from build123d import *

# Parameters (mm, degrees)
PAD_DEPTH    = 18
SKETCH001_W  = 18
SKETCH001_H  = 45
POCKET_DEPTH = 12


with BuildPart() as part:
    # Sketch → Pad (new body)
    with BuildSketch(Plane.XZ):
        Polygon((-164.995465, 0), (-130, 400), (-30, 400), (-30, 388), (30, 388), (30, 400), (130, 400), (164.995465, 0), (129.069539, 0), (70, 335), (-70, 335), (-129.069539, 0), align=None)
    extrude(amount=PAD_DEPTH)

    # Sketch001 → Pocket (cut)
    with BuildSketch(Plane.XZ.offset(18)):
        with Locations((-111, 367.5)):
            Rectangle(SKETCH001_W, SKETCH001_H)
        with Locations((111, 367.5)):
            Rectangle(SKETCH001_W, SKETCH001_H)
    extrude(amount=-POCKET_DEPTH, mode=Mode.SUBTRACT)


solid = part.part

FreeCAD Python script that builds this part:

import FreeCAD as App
import Part
import Sketcher
Q = App.Units.Quantity

doc = App.newDocument("Part")
params = doc.addObject("Spreadsheet::Sheet", "Params")
for row, (alias, value) in enumerate([
    ("sketch1_width", "140 mm"),
    ("sketch1_width2", "100 mm"),
    ("sketch1_width3", "60 mm"),
    ("sketch1_height", "12 mm"),
    ("pad1_length", "18 mm"),
    ("sketch2_width", "18 mm"),
    ("sketch2_height", "45 mm"),
    ("pocket1_length", "12 mm"),
], start=1):
    params.set(f"A{row}", alias)
    params.set(f"B{row}", "=" + value)
    params.setAlias(f"B{row}", alias)

body = doc.addObject("PartDesign::Body", "Body")

# Sketch on XZ plane
sketch1 = doc.addObject("Sketcher::SketchObject", "Sketch")
body.addObject(sketch1)
sketch1.AttachmentSupport = (doc.XZ_Plane, [""])
sketch1.MapMode = "FlatFace"
sketch1.addGeometry([
    Part.LineSegment(App.Vector(-130, 400, 0), App.Vector(-165, 0, 0)),  # 0
    Part.LineSegment(App.Vector(-165, 0, 0), App.Vector(-129, 0, 0)),  # 1
    Part.LineSegment(App.Vector(-129, 0, 0), App.Vector(-70, 335, 0)),  # 2
    Part.LineSegment(App.Vector(-70, 335, 0), App.Vector(70, 335, 0)),  # 3
    Part.LineSegment(App.Vector(70, 335, 0), App.Vector(129, 0, 0)),  # 4
    Part.LineSegment(App.Vector(129, 0, 0), App.Vector(165, 0, 0)),  # 5
    Part.LineSegment(App.Vector(165, 0, 0), App.Vector(130, 400, 0)),  # 6
    Part.LineSegment(App.Vector(130, 400, 0), App.Vector(30, 400, 0)),  # 7
    Part.LineSegment(App.Vector(30, 400, 0), App.Vector(30, 388, 0)),  # 8
    Part.LineSegment(App.Vector(30, 388, 0), App.Vector(-30, 388, 0)),  # 9
    Part.LineSegment(App.Vector(-30, 388, 0), App.Vector(-30, 400, 0)),  # 10
    Part.LineSegment(App.Vector(-30, 400, 0), App.Vector(-130, 400, 0)),  # 11
], False)
sketch1.addConstraint([
    Sketcher.Constraint("Coincident", 0, 2, 1, 1),
    Sketcher.Constraint("Coincident", 1, 2, 2, 1),
    Sketcher.Constraint("Coincident", 2, 2, 3, 1),
    Sketcher.Constraint("Coincident", 3, 2, 4, 1),
    Sketcher.Constraint("Coincident", 4, 2, 5, 1),
    Sketcher.Constraint("Coincident", 5, 2, 6, 1),
    Sketcher.Constraint("Coincident", 6, 2, 7, 1),
    Sketcher.Constraint("Coincident", 7, 2, 8, 1),
    Sketcher.Constraint("Coincident", 8, 2, 9, 1),
    Sketcher.Constraint("Coincident", 9, 2, 10, 1),
    Sketcher.Constraint("Coincident", 10, 2, 11, 1),
    Sketcher.Constraint("Coincident", 11, 2, 0, 1),
    Sketcher.Constraint("Horizontal", 1),
    Sketcher.Constraint("Horizontal", 3),
    Sketcher.Constraint("Horizontal", 5),
    Sketcher.Constraint("Horizontal", 7),
    Sketcher.Constraint("Vertical", 8),
    Sketcher.Constraint("Horizontal", 9),
    Sketcher.Constraint("Vertical", 10),
    Sketcher.Constraint("Horizontal", 11),
    Sketcher.Constraint("Symmetric", 1, 2, 4, 2, -1, 1),
    Sketcher.Constraint("Symmetric", 0, 2, 5, 2, -2),
    Sketcher.Constraint("Symmetric", 7, 2, 10, 2, -2),
    Sketcher.Constraint("Equal", 7, 11),
    Sketcher.Constraint("Equal", 2, 4),
    Sketcher.Constraint("DistanceX", 3, 1, 3, 2, Q("140 mm")),
    Sketcher.Constraint("DistanceX", 7, 2, 7, 1, Q("100 mm")),
    Sketcher.Constraint("DistanceX", 9, 2, 9, 1, Q("60 mm")),
    Sketcher.Constraint("DistanceY", 8, 2, 8, 1, Q("12 mm")),
    Sketcher.Constraint("Angle", 0, Q("-95 deg")),
    Sketcher.Constraint("Angle", 2, Q("80 deg")),
    Sketcher.Constraint("DistanceY", -1, 1, 2, 2, Q("335 mm")),
    Sketcher.Constraint("DistanceY", -1, 1, 6, 2, Q("400 mm")),
])
sketch1.setExpression("Constraints[25]", "Params.sketch1_width")
sketch1.setExpression("Constraints[26]", "Params.sketch1_width2")
sketch1.setExpression("Constraints[27]", "Params.sketch1_width3")
sketch1.setExpression("Constraints[28]", "Params.sketch1_height")
pad1 = doc.addObject("PartDesign::Pad", "Pad")
body.addObject(pad1)
pad1.Profile = sketch1
pad1.setExpression("Length", "Params.pad1_length")

# Sketch on XZ plane
sketch2 = doc.addObject("Sketcher::SketchObject", "Sketch001")
body.addObject(sketch2)
sketch2.AttachmentSupport = (doc.XZ_Plane, [""])
sketch2.MapMode = "FlatFace"
sketch2.AttachmentOffset = App.Placement(App.Vector(0, 0, 18), App.Rotation())
sketch2.addGeometry([
    Part.LineSegment(App.Vector(-120, 390, 0), App.Vector(-120, 345, 0)),  # 0
    Part.LineSegment(App.Vector(-120, 345, 0), App.Vector(-102, 345, 0)),  # 1
    Part.LineSegment(App.Vector(-102, 345, 0), App.Vector(-102, 390, 0)),  # 2
    Part.LineSegment(App.Vector(-102, 390, 0), App.Vector(-120, 390, 0)),  # 3
    Part.LineSegment(App.Vector(102, 390, 0), App.Vector(102, 345, 0)),  # 4
    Part.LineSegment(App.Vector(102, 345, 0), App.Vector(120, 345, 0)),  # 5
    Part.LineSegment(App.Vector(120, 345, 0), App.Vector(120, 390, 0)),  # 6
    Part.LineSegment(App.Vector(120, 390, 0), App.Vector(102, 390, 0)),  # 7
], False)
sketch2.addConstraint([
    Sketcher.Constraint("Coincident", 0, 2, 1, 1),
    Sketcher.Constraint("Coincident", 1, 2, 2, 1),
    Sketcher.Constraint("Coincident", 2, 2, 3, 1),
    Sketcher.Constraint("Coincident", 3, 2, 0, 1),
    Sketcher.Constraint("Coincident", 4, 2, 5, 1),
    Sketcher.Constraint("Coincident", 5, 2, 6, 1),
    Sketcher.Constraint("Coincident", 6, 2, 7, 1),
    Sketcher.Constraint("Coincident", 7, 2, 4, 1),
    Sketcher.Constraint("Vertical", 0),
    Sketcher.Constraint("Horizontal", 1),
    Sketcher.Constraint("Vertical", 2),
    Sketcher.Constraint("Horizontal", 3),
    Sketcher.Constraint("Vertical", 4),
    Sketcher.Constraint("Horizontal", 5),
    Sketcher.Constraint("Vertical", 6),
    Sketcher.Constraint("Horizontal", 7),
    Sketcher.Constraint("Symmetric", 1, 2, 4, 2, -2),
    Sketcher.Constraint("Symmetric", 3, 2, 6, 2, -2),
    Sketcher.Constraint("DistanceX", 1, 1, 1, 2, Q("18 mm")),
    Sketcher.Constraint("DistanceY", 0, 2, 0, 1, Q("45 mm")),
    Sketcher.Constraint("DistanceX", 0, 2, -1, 1, Q("120 mm")),
    Sketcher.Constraint("DistanceY", -1, 1, 0, 2, Q("345 mm")),
])
sketch2.setExpression("Constraints[18]", "Params.sketch2_width")
sketch2.setExpression("Constraints[19]", "Params.sketch2_height")
pocket1 = doc.addObject("PartDesign::Pocket", "Pocket")
body.addObject(pocket1)
pocket1.Profile = sketch2
pocket1.setExpression("Length", "Params.pocket1_length")

doc.recompute()
